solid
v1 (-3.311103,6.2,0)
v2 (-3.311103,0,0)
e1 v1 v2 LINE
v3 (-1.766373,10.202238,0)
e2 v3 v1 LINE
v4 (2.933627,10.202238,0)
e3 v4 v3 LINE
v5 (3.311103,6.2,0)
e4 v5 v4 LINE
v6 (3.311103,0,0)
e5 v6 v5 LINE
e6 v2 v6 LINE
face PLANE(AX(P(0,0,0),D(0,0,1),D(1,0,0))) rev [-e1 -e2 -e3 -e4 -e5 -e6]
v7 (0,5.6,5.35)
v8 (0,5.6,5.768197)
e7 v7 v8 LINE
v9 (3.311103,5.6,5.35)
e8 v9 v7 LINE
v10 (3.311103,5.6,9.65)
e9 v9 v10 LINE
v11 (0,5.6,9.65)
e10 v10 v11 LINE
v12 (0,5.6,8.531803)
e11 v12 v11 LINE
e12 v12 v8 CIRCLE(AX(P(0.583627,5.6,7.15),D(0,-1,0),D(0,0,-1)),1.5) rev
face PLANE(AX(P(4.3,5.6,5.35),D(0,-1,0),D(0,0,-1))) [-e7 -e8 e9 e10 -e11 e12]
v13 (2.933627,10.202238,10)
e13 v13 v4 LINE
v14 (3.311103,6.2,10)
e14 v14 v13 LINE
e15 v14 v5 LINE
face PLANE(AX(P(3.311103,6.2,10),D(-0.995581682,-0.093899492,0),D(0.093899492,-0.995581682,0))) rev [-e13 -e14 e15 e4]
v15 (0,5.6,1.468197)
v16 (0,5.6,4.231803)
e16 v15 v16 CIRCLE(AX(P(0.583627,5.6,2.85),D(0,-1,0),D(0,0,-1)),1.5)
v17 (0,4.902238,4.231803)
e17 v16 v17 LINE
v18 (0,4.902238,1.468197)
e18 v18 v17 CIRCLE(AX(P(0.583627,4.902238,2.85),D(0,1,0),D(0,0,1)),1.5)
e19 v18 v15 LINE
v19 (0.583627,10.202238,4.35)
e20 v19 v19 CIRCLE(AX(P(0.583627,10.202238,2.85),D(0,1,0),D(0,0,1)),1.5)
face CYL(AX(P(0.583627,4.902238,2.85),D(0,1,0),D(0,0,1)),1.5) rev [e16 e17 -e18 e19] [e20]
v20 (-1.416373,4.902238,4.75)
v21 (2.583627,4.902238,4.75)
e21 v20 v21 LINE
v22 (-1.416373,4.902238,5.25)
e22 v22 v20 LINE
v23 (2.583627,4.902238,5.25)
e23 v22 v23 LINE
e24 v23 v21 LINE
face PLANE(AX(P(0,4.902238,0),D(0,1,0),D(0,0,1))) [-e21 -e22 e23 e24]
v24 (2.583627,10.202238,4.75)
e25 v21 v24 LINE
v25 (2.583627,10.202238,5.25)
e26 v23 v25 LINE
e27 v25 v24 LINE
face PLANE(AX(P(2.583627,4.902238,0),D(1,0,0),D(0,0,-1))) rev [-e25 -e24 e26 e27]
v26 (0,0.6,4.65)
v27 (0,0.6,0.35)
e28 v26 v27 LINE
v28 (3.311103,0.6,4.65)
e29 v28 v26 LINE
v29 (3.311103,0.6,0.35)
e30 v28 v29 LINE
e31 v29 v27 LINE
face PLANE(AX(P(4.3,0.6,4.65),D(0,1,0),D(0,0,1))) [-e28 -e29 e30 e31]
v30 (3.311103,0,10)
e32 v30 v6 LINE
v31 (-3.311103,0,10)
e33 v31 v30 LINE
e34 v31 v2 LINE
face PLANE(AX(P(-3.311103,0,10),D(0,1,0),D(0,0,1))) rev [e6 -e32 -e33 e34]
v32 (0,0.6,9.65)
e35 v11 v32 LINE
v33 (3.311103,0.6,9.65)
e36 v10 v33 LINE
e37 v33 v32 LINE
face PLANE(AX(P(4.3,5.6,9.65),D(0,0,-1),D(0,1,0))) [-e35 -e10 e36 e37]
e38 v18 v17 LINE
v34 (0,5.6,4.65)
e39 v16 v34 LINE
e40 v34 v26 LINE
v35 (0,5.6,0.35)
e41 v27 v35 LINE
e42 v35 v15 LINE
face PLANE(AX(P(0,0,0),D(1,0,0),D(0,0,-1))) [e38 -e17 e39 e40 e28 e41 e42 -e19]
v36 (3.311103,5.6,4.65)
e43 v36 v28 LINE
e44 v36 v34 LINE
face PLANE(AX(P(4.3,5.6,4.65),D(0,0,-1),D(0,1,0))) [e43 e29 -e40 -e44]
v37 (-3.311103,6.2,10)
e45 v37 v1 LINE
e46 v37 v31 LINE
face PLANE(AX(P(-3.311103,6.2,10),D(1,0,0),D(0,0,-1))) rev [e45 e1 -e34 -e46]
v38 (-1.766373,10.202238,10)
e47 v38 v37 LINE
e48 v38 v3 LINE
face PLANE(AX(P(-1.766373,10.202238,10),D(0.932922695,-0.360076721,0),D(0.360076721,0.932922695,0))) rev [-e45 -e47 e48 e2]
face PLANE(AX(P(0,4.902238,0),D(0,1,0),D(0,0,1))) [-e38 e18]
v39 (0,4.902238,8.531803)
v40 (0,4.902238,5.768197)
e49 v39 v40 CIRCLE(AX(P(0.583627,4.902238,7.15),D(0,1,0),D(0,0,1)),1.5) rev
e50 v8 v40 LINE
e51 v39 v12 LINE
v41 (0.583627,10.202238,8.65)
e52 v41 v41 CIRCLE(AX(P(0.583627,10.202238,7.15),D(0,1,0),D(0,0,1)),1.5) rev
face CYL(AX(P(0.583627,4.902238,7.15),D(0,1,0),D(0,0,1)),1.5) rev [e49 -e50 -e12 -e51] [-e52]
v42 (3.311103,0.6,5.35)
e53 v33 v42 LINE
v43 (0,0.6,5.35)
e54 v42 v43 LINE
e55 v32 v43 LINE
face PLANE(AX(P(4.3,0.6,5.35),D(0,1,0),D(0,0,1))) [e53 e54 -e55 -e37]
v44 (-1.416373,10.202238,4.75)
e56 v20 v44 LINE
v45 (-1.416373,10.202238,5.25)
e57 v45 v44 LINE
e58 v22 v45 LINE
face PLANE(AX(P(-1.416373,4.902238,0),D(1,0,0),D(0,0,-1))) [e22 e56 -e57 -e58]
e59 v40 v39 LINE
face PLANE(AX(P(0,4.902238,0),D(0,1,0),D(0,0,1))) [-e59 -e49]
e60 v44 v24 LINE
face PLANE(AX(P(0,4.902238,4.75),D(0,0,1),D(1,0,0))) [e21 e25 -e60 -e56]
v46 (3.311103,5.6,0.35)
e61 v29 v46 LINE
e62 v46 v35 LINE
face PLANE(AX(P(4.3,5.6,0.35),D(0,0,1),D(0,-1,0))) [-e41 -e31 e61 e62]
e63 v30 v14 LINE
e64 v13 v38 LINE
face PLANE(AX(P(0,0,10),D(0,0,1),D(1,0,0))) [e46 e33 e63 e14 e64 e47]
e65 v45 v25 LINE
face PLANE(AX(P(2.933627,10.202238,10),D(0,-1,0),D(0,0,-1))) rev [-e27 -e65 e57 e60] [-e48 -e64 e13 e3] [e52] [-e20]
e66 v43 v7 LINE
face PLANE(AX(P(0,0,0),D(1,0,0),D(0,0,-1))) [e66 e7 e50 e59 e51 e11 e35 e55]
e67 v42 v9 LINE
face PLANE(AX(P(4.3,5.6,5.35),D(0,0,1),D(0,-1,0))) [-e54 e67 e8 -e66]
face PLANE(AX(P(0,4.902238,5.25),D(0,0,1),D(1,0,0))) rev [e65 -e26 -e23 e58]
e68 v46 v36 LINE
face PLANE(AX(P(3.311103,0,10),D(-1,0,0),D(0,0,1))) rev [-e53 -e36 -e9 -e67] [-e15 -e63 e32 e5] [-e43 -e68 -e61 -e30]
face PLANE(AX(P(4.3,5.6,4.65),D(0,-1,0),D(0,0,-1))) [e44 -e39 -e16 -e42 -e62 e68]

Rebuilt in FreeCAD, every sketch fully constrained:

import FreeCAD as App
import Part
import Sketcher

V = App.Vector
Q = App.Units.Quantity


def add_polygon(sketch, points):
    """Adds a closed chain of lines whose ends are joined by coincident constraints."""
    first, n = sketch.GeometryCount, len(points)
    for a, b in zip(points, points[1:] + points[:1]):
        sketch.addGeometry(Part.LineSegment(App.Vector(*a, 0), App.Vector(*b, 0)), False)
    for i in range(n):
        sketch.addConstraint(Sketcher.Constraint("Coincident", first + i, 2, first + (i + 1) % n, 1))

doc = App.newDocument("Part")
body = doc.addObject("PartDesign::Body", "Body")

# Sketch on XY plane
sketch1 = doc.addObject("Sketcher::SketchObject", "Sketch")
body.addObject(sketch1)
sketch1.AttachmentSupport = (doc.XY_Plane, [""])
sketch1.MapMode = "FlatFace"
add_polygon(sketch1, [(-3.311103, 0), (3.311103, 0), (3.311103, 6.2), (2.933627, 10.202238), (-1.766373, 10.202238), (-3.311103, 6.2)])  # lines 0-5
sketch1.addConstraint(Sketcher.Constraint("Horizontal", 0))
sketch1.addConstraint(Sketcher.Constraint("Vertical", 1))
sketch1.addConstraint(Sketcher.Constraint("Horizontal", 3))
sketch1.addConstraint(Sketcher.Constraint("Vertical", 5))
sketch1.addConstraint(Sketcher.Constraint("Symmetric", 0, 2, 5, 2, -1, 1))
sketch1.addConstraint(Sketcher.Constraint("Horizontal", 1, 2, 4, 2))
sketch1.addConstraint(Sketcher.Constraint("DistanceX", 3, 2, 3, 1, Q("4.7 mm")))
sketch1.addConstraint(Sketcher.Constraint("DistanceY", 1, 1, 1, 2, Q("6.2 mm")))
sketch1.addConstraint(Sketcher.Constraint("Distance", 2, Q("4.02 mm")))
sketch1.addConstraint(Sketcher.Constraint("Distance", 4, Q("4.29 mm")))
sketch1.addConstraint(Sketcher.Constraint("DistanceX", 0, 1, 0, 2, Q("6.622205 mm")))
pad1 = doc.addObject("PartDesign::Pad", "Pad")
body.addObject(pad1)
pad1.Profile = sketch1
pad1.Length = 10

# Sketch on YZ plane
sketch2 = doc.addObject("Sketcher::SketchObject", "Sketch001")
body.addObject(sketch2)
sketch2.AttachmentSupport = (doc.YZ_Plane, [""])
sketch2.MapMode = "FlatFace"
add_polygon(sketch2, [(5.6, 4.65), (0.6, 4.65), (0.6, 0.35), (5.6, 0.35)])  # lines 0-3
add_polygon(sketch2, [(5.6, 9.65), (0.6, 9.65), (0.6, 5.35), (5.6, 5.35)])  # lines 4-7
sketch2.addConstraint(Sketcher.Constraint("Horizontal", 0))
sketch2.addConstraint(Sketcher.Constraint("Vertical", 1))
sketch2.addConstraint(Sketcher.Constraint("Horizontal", 2))
sketch2.addConstraint(Sketcher.Constraint("Vertical", 3))
sketch2.addConstraint(Sketcher.Constraint("Horizontal", 4))
sketch2.addConstraint(Sketcher.Constraint("Vertical", 5))
sketch2.addConstraint(Sketcher.Constraint("Horizontal", 6))
sketch2.addConstraint(Sketcher.Constraint("Vertical", 7))
sketch2.addConstraint(Sketcher.Constraint("Vertical", 1, 2, 4, 2))
sketch2.addConstraint(Sketcher.Constraint("Vertical", 3, 2, 6, 2))
sketch2.addConstraint(Sketcher.Constraint("Equal", 3, 5))
sketch2.addConstraint(Sketcher.Constraint("DistanceX", 0, 2, 0, 1, Q("5 mm")))
sketch2.addConstraint(Sketcher.Constraint("DistanceY", 1, 2, 1, 1, Q("4.3 mm")))
sketch2.addConstraint(Sketcher.Constraint("DistanceY", 0, 2, 4, 2, Q("5 mm")))
sketch2.addConstraint(Sketcher.Constraint("DistanceX", -1, 1, 0, 2, Q("0.6 mm")))
sketch2.addConstraint(Sketcher.Constraint("DistanceY", -1, 1, 0, 2, Q("4.65 mm")))
pocket1 = doc.addObject("PartDesign::Pocket", "Pocket")
body.addObject(pocket1)
pocket1.Profile = sketch2
pocket1.Length = 4.3
pocket1.Reversed = True

# Sketch on XZ plane
sketch3 = doc.addObject("Sketcher::SketchObject", "Sketch002")
body.addObject(sketch3)
sketch3.AttachmentSupport = (doc.XZ_Plane, [""])
sketch3.MapMode = "FlatFace"
sketch3.AttachmentOffset = App.Placement(V(0, 0, -10.202238), App.Rotation())
sketch3.addGeometry(Part.Circle(V(0.583627, 7.15, 0), V(0, 0, 1), 1.5), False)  # 0
add_polygon(sketch3, [(-1.416373, 5.25), (2.583627, 5.25), (2.583627, 4.75), (-1.416373, 4.75)])  # lines 1-4
sketch3.addGeometry(Part.Circle(V(0.583627, 2.85, 0), V(0, 0, 1), 1.5), False)  # 5
sketch3.addConstraint(Sketcher.Constraint("Horizontal", 1))
sketch3.addConstraint(Sketcher.Constraint("Vertical", 2))
sketch3.addConstraint(Sketcher.Constraint("Horizontal", 3))
sketch3.addConstraint(Sketcher.Constraint("Vertical", 4))
sketch3.addConstraint(Sketcher.Constraint("Equal", 0, 5))
sketch3.addConstraint(Sketcher.Constraint("Vertical", 0, 3, 5, 3))
sketch3.addConstraint(Sketcher.Constraint("Diameter", 0, Q("3 mm")))
sketch3.addConstraint(Sketcher.Constraint("DistanceX", 1, 1, 1, 2, Q("4 mm")))
sketch3.addConstraint(Sketcher.Constraint("DistanceY", 2, 2, 2, 1, Q("0.5 mm")))
sketch3.addConstraint(Sketcher.Constraint("DistanceX", 0, 3, 1, 2, Q("2 mm")))
sketch3.addConstraint(Sketcher.Constraint("DistanceY", 5, 3, 0, 3, Q("4.3 mm")))
sketch3.addConstraint(Sketcher.Constraint("DistanceY", 1, 2, 0, 3, Q("1.9 mm")))
sketch3.addConstraint(Sketcher.Constraint("DistanceY", -1, 1, 0, 3, Q("7.15 mm")))
sketch3.addConstraint(Sketcher.Constraint("DistanceX", -1, 1, 0, 3, Q("0.583627 mm")))
pocket2 = doc.addObject("PartDesign::Pocket", "Pocket001")
body.addObject(pocket2)
pocket2.Profile = sketch3
pocket2.Length = 5.3
pocket2.Reversed = True

doc.recompute()
